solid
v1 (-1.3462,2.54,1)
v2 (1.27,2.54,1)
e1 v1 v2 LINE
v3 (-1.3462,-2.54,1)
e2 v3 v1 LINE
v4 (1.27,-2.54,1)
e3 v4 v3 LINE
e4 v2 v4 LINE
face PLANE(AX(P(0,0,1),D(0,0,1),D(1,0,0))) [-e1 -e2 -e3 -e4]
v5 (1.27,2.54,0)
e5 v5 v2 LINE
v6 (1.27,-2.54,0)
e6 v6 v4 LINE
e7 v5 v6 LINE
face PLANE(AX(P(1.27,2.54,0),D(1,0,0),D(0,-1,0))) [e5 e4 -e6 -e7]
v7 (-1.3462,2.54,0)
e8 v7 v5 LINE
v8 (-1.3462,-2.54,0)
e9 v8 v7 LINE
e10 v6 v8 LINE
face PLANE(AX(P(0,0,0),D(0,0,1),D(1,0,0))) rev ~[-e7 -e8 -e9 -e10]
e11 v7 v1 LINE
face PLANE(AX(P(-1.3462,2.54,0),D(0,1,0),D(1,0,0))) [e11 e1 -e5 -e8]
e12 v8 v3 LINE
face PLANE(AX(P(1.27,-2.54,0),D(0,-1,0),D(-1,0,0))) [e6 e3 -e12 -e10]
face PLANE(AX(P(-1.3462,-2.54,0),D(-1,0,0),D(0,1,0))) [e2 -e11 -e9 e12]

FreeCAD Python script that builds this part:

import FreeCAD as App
import Part
import Sketcher
Q = App.Units.Quantity


def add_polygon(sketch, points):
    """Adds a closed chain of lines whose ends are joined by coincident constraints."""
    first, n = sketch.GeometryCount, len(points)
    for a, b in zip(points, points[1:] + points[:1]):
        sketch.addGeometry(Part.LineSegment(App.Vector(*a, 0), App.Vector(*b, 0)), False)
    for i in range(n):
        sketch.addConstraint(Sketcher.Constraint("Coincident", first + i, 2, first + (i + 1) % n, 1))

doc = App.newDocument("Part")
body = doc.addObject("PartDesign::Body", "Body")

# Sketch on XY plane
sketch1 = body.newObject("Sketcher::SketchObject", "Sketch")
sketch1.AttachmentSupport = (doc.getObject("XY_Plane"), [""])
sketch1.MapMode = "FlatFace"
add_polygon(sketch1, [(1.27, 2.54), (-1.3462, 2.54), (-1.3462, -2.54), (1.27, -2.54)])  # lines 0-3
sketch1.addConstraint(Sketcher.Constraint("Horizontal", 0))
sketch1.addConstraint(Sketcher.Constraint("Vertical", 1))
sketch1.addConstraint(Sketcher.Constraint("Horizontal", 2))
sketch1.addConstraint(Sketcher.Constraint("Vertical", 3))
sketch1.addConstraint(Sketcher.Constraint("DistanceY", 1, 2, 1, 1, Q("0.2 in")))
sketch1.addConstraint(Sketcher.Constraint("DistanceY", -1, 1, 0, 2, Q("0.1 in")))
sketch1.addConstraint(Sketcher.Constraint("DistanceX", 0, 2, 0, 1, Q("0.103 in")))
sketch1.addConstraint(Sketcher.Constraint("DistanceX", -1, 1, 2, 2, Q("0.05 in")))
pad1 = body.newObject("PartDesign::Pad", "Pad")
pad1.Profile = sketch1
pad1.Length = 1

doc.recompute()
